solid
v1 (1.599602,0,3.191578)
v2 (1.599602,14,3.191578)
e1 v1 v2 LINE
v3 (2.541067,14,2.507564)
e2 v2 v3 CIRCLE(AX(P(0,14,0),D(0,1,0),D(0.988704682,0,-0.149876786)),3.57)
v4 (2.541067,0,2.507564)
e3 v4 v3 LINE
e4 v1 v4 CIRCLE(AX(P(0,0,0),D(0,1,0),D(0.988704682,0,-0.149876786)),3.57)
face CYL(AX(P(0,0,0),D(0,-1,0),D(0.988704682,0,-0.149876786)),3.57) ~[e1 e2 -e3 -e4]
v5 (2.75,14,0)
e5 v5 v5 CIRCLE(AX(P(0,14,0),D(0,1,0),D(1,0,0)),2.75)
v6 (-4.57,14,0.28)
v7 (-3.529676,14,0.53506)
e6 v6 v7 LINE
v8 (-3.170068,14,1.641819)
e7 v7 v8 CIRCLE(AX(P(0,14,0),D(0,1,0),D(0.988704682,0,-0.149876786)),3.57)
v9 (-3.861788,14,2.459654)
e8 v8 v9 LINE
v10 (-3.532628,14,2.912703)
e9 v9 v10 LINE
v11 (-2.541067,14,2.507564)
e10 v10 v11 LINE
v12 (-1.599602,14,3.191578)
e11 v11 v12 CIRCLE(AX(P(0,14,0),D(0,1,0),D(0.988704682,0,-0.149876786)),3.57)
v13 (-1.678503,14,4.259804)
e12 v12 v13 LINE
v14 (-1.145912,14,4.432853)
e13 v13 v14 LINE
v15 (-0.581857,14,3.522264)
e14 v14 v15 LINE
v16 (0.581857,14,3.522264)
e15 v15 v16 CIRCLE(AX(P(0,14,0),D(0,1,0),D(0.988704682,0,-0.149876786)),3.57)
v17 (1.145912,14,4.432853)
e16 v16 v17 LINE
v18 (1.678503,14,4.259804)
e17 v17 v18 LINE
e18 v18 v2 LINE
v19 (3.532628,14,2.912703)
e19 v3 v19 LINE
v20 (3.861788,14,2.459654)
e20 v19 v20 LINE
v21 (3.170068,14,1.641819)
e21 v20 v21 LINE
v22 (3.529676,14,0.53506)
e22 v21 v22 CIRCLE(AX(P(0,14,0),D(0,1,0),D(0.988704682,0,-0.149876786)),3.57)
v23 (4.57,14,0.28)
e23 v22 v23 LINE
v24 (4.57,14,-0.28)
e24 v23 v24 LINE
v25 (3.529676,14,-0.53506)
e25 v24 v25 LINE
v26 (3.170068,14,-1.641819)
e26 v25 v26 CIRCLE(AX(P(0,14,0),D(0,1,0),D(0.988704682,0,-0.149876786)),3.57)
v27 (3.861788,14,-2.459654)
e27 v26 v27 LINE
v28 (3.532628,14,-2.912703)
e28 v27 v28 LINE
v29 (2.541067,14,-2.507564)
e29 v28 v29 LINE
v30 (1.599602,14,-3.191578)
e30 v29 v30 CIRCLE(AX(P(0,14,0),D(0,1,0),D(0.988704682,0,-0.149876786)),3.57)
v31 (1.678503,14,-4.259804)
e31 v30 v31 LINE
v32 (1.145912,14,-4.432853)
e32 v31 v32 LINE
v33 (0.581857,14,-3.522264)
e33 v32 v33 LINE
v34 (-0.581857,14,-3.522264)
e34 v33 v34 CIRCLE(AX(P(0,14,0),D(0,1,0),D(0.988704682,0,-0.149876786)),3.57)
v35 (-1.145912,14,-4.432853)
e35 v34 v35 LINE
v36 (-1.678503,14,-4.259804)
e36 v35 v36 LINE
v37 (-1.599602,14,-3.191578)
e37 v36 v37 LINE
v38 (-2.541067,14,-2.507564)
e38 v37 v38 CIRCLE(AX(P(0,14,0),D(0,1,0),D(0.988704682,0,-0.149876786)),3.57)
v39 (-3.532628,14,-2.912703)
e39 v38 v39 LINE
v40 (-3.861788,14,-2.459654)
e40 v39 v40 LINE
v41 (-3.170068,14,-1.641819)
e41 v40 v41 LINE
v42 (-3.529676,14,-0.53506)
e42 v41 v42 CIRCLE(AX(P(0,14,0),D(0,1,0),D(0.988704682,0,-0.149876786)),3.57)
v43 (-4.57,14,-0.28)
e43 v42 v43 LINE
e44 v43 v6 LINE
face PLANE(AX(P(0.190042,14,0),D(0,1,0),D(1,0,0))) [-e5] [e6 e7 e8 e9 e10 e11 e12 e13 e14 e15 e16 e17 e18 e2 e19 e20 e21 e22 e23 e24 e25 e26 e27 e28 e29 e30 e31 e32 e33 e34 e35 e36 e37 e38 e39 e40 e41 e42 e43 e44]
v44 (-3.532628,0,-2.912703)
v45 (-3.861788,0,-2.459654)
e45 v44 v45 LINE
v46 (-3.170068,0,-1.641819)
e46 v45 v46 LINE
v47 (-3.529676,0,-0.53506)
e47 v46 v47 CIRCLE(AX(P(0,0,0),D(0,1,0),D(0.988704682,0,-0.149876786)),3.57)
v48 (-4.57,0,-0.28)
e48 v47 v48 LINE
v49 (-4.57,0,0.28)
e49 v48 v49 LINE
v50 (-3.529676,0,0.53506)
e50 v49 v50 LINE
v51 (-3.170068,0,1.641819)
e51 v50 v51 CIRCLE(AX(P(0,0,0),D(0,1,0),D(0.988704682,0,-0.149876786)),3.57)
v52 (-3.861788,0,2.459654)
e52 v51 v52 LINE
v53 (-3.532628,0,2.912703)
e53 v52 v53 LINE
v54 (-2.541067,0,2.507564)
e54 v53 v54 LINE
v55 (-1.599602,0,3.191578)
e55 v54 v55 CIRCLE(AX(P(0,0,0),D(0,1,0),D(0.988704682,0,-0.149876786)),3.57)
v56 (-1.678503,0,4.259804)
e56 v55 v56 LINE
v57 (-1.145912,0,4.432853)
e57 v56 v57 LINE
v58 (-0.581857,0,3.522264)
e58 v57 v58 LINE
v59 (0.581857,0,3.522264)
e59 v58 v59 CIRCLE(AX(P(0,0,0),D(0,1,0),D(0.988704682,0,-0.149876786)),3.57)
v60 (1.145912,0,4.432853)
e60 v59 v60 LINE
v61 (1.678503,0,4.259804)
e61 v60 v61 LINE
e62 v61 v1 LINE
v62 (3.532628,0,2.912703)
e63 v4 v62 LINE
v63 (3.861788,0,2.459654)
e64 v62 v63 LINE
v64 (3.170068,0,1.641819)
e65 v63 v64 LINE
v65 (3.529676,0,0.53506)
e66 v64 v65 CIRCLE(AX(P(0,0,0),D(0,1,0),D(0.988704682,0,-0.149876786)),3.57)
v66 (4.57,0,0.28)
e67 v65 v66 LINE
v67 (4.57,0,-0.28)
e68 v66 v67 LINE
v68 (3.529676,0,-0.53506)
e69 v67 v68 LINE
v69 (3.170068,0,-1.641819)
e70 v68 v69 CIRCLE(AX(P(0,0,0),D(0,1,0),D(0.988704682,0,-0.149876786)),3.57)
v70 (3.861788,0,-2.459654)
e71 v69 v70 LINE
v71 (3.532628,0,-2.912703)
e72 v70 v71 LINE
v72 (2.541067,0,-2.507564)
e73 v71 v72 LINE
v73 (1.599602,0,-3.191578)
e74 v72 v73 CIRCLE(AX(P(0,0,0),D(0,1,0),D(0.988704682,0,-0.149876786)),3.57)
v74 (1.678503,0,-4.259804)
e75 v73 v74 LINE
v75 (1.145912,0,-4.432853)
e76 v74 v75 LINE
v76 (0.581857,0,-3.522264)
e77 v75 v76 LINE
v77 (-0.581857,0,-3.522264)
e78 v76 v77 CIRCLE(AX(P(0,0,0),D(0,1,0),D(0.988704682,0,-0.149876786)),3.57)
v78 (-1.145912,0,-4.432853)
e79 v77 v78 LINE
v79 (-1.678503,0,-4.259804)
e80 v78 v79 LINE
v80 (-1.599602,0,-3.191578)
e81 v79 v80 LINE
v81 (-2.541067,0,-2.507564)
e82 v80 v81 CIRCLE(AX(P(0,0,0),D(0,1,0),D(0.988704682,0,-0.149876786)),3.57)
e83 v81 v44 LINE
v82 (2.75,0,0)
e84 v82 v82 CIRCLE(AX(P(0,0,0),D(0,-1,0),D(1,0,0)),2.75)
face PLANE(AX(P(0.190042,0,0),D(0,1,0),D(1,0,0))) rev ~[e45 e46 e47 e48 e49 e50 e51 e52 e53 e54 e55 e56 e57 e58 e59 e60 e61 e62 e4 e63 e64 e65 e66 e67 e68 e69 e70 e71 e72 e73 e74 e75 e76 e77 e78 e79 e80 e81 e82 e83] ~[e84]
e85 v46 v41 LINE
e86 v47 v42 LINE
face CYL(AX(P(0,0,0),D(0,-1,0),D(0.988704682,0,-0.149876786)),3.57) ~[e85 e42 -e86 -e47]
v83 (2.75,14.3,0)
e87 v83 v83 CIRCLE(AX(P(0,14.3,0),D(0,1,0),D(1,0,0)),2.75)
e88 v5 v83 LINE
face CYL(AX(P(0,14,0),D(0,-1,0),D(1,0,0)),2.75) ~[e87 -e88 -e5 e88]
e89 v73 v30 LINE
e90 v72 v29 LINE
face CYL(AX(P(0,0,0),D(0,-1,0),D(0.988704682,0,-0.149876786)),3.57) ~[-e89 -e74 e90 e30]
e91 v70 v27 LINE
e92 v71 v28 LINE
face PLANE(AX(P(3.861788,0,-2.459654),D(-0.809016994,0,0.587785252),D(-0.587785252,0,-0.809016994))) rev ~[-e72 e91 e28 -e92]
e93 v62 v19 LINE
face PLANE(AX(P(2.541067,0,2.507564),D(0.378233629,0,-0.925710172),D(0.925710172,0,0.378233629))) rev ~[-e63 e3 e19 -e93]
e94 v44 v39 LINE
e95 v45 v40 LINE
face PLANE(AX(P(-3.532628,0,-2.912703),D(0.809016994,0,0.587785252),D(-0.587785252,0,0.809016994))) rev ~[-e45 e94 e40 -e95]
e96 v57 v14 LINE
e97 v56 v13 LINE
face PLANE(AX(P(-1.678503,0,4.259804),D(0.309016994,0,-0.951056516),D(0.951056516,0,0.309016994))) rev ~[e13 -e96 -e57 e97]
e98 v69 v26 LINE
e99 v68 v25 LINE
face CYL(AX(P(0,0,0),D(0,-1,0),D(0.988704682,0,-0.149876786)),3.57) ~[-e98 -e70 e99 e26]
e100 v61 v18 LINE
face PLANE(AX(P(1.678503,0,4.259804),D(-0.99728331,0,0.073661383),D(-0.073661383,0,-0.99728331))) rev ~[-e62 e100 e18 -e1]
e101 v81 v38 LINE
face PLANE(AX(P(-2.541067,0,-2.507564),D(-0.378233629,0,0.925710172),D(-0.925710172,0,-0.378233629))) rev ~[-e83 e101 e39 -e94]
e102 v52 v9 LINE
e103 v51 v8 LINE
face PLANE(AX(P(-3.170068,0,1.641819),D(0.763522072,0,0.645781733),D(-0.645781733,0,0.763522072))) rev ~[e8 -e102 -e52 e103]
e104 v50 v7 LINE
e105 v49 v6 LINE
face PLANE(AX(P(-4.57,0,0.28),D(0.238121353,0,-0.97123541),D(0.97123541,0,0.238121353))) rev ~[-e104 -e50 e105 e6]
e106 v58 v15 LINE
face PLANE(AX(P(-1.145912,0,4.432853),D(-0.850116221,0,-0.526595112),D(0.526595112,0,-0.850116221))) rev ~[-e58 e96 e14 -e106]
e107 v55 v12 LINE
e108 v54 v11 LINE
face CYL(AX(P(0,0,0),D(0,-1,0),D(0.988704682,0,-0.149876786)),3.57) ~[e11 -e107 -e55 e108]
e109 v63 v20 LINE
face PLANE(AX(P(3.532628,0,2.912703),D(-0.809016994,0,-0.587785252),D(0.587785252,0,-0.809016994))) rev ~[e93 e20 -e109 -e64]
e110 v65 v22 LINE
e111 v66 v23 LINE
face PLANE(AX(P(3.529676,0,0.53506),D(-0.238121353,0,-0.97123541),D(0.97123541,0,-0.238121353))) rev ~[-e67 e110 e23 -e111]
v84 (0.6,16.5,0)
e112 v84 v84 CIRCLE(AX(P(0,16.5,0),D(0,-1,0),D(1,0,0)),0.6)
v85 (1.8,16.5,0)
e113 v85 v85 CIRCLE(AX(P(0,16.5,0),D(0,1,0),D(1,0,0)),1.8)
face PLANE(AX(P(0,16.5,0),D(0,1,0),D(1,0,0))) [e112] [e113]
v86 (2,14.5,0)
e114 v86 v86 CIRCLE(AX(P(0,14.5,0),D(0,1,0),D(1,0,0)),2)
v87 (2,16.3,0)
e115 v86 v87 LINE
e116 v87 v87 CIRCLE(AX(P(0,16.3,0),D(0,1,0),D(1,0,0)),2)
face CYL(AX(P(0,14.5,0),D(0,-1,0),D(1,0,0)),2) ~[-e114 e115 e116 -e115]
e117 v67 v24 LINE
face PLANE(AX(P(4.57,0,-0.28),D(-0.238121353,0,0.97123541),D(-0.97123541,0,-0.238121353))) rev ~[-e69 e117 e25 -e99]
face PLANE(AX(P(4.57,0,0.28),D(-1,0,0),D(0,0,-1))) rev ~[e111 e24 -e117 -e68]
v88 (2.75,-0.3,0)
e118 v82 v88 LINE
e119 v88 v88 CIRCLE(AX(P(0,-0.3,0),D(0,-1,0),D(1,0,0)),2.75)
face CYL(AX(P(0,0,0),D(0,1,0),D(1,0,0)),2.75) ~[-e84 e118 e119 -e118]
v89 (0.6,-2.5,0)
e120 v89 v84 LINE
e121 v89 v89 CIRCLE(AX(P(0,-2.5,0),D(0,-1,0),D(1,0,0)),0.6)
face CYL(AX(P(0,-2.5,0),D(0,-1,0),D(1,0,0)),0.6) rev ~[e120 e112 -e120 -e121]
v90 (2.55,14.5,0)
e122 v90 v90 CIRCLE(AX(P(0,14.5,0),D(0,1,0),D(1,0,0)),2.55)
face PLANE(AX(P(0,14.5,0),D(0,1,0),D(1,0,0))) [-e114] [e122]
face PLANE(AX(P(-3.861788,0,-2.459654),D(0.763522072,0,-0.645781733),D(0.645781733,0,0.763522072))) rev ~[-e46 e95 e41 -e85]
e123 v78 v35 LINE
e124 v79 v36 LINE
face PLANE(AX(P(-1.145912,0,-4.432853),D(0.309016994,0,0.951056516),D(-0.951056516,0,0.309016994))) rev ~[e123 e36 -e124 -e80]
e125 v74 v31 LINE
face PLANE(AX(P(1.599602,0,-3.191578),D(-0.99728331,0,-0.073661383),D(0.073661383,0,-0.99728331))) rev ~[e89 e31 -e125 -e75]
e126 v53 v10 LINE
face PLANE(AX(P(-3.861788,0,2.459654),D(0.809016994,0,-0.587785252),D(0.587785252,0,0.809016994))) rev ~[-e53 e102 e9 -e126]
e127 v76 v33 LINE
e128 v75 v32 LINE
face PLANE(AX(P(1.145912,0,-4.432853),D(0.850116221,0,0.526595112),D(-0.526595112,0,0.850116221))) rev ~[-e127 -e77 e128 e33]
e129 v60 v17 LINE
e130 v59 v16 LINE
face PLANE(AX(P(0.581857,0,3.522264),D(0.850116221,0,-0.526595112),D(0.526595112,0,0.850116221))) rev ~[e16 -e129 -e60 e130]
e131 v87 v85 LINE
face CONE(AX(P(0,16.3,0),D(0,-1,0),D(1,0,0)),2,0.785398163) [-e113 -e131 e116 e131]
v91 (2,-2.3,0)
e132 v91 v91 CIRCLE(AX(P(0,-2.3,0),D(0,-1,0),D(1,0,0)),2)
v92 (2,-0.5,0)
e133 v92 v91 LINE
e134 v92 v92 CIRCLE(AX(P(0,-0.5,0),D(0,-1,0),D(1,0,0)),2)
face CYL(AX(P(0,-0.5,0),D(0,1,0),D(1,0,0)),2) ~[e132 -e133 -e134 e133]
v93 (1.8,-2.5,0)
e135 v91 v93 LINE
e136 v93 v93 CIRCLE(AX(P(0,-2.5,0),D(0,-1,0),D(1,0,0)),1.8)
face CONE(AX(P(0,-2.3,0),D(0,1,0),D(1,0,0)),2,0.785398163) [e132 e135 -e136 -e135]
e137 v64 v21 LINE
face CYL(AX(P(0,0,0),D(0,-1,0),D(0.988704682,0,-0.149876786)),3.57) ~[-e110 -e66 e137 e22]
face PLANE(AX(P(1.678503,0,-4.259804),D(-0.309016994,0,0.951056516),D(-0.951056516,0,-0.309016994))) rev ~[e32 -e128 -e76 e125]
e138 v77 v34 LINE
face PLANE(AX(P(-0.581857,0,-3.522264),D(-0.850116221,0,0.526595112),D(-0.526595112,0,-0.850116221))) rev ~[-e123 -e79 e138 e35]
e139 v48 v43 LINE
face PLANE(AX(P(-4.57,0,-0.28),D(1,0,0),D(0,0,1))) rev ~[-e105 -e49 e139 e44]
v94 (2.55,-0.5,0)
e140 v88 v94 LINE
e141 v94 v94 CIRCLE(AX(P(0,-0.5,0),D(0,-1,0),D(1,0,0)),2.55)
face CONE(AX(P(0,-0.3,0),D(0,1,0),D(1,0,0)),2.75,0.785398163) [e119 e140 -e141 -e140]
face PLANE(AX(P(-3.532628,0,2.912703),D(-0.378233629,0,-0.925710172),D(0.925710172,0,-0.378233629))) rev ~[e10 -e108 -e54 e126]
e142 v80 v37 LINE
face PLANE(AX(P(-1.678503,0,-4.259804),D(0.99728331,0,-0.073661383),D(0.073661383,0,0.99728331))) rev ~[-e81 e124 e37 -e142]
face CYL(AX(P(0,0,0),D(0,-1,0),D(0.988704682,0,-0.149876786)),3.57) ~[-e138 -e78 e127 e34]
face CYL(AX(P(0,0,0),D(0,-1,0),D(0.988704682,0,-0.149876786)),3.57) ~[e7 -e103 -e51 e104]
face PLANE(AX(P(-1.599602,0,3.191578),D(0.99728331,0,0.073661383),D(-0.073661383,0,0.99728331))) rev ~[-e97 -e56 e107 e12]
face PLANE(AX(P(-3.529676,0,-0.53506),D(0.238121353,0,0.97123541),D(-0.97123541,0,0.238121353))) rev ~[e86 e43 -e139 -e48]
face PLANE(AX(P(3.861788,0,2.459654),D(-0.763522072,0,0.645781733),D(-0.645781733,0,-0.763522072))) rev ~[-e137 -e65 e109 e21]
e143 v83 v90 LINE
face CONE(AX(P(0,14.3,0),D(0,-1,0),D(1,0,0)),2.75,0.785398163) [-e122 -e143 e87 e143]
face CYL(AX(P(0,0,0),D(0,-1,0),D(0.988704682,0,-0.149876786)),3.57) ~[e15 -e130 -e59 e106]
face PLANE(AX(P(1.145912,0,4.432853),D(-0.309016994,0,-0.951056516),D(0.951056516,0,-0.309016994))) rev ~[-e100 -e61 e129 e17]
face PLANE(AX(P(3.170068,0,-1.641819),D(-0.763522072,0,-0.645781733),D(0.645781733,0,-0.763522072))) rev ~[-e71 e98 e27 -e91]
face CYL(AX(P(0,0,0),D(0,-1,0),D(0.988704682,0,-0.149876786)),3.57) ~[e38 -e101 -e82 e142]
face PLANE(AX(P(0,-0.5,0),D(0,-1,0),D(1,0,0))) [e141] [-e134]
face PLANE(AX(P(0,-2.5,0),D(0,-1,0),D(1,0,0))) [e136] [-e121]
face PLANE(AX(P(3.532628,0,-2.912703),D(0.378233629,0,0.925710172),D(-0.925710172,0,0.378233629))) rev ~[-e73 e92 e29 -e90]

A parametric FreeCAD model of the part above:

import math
import FreeCAD as App
import Part
import Sketcher


def edges_at(feature, points):
    """Names of the edges that pass closest to the given points."""
    edges = feature.Shape.Edges
    near = lambda p: min(range(len(edges)), key=lambda i: edges[i].distToShape(Part.Vertex(*p))[0])
    return sorted({f"Edge{near(p) + 1}" for p in points})

doc = App.newDocument("Part")
body = doc.addObject("PartDesign::Body", "Body")

sketch1 = body.newObject("Sketcher::SketchObject", "Sketch")
sketch1.AttachmentSupport = (doc.getObject("XZ_Plane"), [""])
sketch1.MapMode = "FlatFace"
sketch1.addGeometry(Part.ArcOfCircle(Part.Circle(App.Vector(0, 0, 0), App.Vector(0, 0, 1), 3.57), math.radians(8.619786), math.radians(351.380214)), False)
sketch1.addGeometry(Part.LineSegment(App.Vector(3.529676, 0.53506, 0), App.Vector(4.57, 0.28, 0)), False)
sketch1.addGeometry(Part.LineSegment(App.Vector(4.57, 0.28, 0), App.Vector(4.57, -0.28, 0)), False)
sketch1.addGeometry(Part.LineSegment(App.Vector(4.57, -0.28, 0), App.Vector(3.529676, -0.53506, 0)), False)
sketch1.addConstraint(Sketcher.Constraint("Coincident", 0, 1, 1, 1))
sketch1.addConstraint(Sketcher.Constraint("Coincident", 1, 2, 2, 1))
sketch1.addConstraint(Sketcher.Constraint("Coincident", 2, 2, 3, 1))
sketch1.addConstraint(Sketcher.Constraint("Coincident", 3, 2, 0, 2))
sketch1.addConstraint(Sketcher.Constraint("Vertical", 2))
sketch1.addConstraint(Sketcher.Constraint("Coincident", 0, 3, -1, 1))
sketch1.addConstraint(Sketcher.Constraint("Vertical", 0, 1, 3, 2))
sketch1.addConstraint(Sketcher.Constraint("Equal", 1, 3))
sketch1.addConstraint(Sketcher.Constraint("Radius", 0, 3.57))
sketch1.addConstraint(Sketcher.Constraint("DistanceY", 2, 2, 2, 1, 0.56))
sketch1.addConstraint(Sketcher.Constraint("DistanceX", -1, 1, 1, 2, 4.57))
sketch1.addConstraint(Sketcher.Constraint("DistanceY", -1, 1, 0, 1, 0.53506))
pad1 = body.newObject("PartDesign::Pad", "Pad")
pad1.Profile = sketch1
pad1.Length = 14
pad1.Reversed = True
doc.recompute()

polarpattern = body.newObject("PartDesign::PolarPattern", "PolarPattern")
polarpattern.Originals = [pad1]
polarpattern.Axis = (doc.getObject("Y_Axis"), [""])
polarpattern.Angle = 360
polarpattern.Occurrences = 10
body.Tip = polarpattern

sketch2 = body.newObject("Sketcher::SketchObject", "Sketch001")
sketch2.AttachmentSupport = (doc.getObject("XZ_Plane"), [""])
sketch2.MapMode = "FlatFace"
sketch2.AttachmentOffset = App.Placement(App.Vector(0, 0, -14), App.Rotation())
sketch2.addGeometry(Part.Circle(App.Vector(0, 0, 0), App.Vector(0, 0, 1), 2.75), False)
sketch2.addConstraint(Sketcher.Constraint("Coincident", 0, 3, -1, 1))
sketch2.addConstraint(Sketcher.Constraint("Diameter", 0, 5.5))
pad2 = body.newObject("PartDesign::Pad", "Pad001")
pad2.Profile = sketch2
pad2.Length = 0.5
pad2.Reversed = True

sketch3 = body.newObject("Sketcher::SketchObject", "Sketch002")
sketch3.AttachmentSupport = (doc.getObject("XZ_Plane"), [""])
sketch3.MapMode = "FlatFace"
sketch3.addGeometry(Part.Circle(App.Vector(0, 0, 0), App.Vector(0, 0, 1), 2.75), False)
sketch3.addConstraint(Sketcher.Constraint("Coincident", 0, 3, -1, 1))
sketch3.addConstraint(Sketcher.Constraint("Diameter", 0, 5.5))
pad3 = body.newObject("PartDesign::Pad", "Pad002")
pad3.Profile = sketch3
pad3.Length = 0.5

sketch4 = body.newObject("Sketcher::SketchObject", "Sketch003")
sketch4.AttachmentSupport = (doc.getObject("XZ_Plane"), [""])
sketch4.MapMode = "FlatFace"
sketch4.AttachmentOffset = App.Placement(App.Vector(0, 0, -14.5), App.Rotation())
sketch4.addGeometry(Part.Circle(App.Vector(0, 0, 0), App.Vector(0, 0, 1), 2), False)
sketch4.addConstraint(Sketcher.Constraint("Coincident", 0, 3, -1, 1))
sketch4.addConstraint(Sketcher.Constraint("Diameter", 0, 4.0))
pad4 = body.newObject("PartDesign::Pad", "Pad003")
pad4.Profile = sketch4
pad4.Length = 2
pad4.Reversed = True

sketch5 = body.newObject("Sketcher::SketchObject", "Sketch004")
sketch5.AttachmentSupport = (doc.getObject("XZ_Plane"), [""])
sketch5.MapMode = "FlatFace"
sketch5.AttachmentOffset = App.Placement(App.Vector(0, 0, 0.5), App.Rotation())
sketch5.addGeometry(Part.Circle(App.Vector(0, 0, 0), App.Vector(0, 0, 1), 2), False)
sketch5.addConstraint(Sketcher.Constraint("Coincident", 0, 3, -1, 1))
sketch5.addConstraint(Sketcher.Constraint("Diameter", 0, 4.0))
pad5 = body.newObject("PartDesign::Pad", "Pad004")
pad5.Profile = sketch5
pad5.Length = 2
doc.recompute()

chamfer = body.newObject("PartDesign::Chamfer", "Chamfer")
chamfer.Base = (pad5, edges_at(pad5, [
    (-2.75, 14.5, 0),
    (-2.75, -0.5, 0),
    (-2, 16.5, 0),
    (-2, -2.5, 0),
]))
chamfer.Size = 0.2

sketch6 = body.newObject("Sketcher::SketchObject", "Sketch005")
sketch6.AttachmentSupport = (doc.getObject("XZ_Plane"), [""])
sketch6.MapMode = "FlatFace"
sketch6.AttachmentOffset = App.Placement(App.Vector(0, 0, 2.5), App.Rotation())
sketch6.addGeometry(Part.Circle(App.Vector(0, 0, 0), App.Vector(0, 0, 1), 0.6), False)
sketch6.addConstraint(Sketcher.Constraint("Coincident", 0, 3, -1, 1))
sketch6.addConstraint(Sketcher.Constraint("Diameter", 0, 1.2))
pocket1 = body.newObject("PartDesign::Pocket", "Pocket")
pocket1.Profile = sketch6
pocket1.Type = "ThroughAll"

doc.recompute()
